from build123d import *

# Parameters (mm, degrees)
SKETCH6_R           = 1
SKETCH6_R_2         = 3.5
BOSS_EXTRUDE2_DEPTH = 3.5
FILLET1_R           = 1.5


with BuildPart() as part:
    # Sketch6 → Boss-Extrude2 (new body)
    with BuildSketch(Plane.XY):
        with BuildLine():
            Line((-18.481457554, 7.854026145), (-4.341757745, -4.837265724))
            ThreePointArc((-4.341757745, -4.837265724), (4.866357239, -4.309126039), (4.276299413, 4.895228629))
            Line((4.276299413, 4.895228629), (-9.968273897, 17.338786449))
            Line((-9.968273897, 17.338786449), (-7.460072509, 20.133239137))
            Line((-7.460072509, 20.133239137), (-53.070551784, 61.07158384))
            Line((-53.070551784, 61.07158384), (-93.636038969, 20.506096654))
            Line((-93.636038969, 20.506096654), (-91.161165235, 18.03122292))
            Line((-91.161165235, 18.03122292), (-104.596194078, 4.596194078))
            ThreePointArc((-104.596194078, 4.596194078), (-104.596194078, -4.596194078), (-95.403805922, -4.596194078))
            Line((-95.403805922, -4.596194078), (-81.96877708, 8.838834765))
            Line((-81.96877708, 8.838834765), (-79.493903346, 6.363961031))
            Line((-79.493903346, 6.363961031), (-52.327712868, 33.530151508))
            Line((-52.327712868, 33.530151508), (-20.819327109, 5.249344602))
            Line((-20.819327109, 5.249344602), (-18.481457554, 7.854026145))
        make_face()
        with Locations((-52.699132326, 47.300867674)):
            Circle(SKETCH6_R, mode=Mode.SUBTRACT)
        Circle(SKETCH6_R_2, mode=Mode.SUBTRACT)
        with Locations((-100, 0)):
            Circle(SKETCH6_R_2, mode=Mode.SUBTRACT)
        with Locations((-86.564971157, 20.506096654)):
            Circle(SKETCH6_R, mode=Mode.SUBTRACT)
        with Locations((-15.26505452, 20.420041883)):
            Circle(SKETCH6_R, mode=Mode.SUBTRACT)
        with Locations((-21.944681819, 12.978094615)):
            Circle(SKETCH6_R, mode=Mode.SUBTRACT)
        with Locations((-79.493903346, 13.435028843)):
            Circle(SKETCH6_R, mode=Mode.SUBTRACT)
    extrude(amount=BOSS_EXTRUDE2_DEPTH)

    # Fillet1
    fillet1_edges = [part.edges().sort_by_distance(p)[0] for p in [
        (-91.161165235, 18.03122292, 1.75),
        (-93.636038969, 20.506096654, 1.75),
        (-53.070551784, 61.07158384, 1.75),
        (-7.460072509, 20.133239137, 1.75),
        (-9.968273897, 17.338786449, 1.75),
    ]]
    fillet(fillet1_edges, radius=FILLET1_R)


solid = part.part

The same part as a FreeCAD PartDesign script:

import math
import FreeCAD as App
import Part
import Sketcher
Q = App.Units.Quantity


def edges_at(feature, points):
    """Names of the edges that pass closest to the given points."""
    edges = feature.Shape.Edges
    near = lambda p: min(range(len(edges)), key=lambda i: edges[i].distToShape(Part.Vertex(*p))[0])
    return sorted({f"Edge{near(p) + 1}" for p in points})

doc = App.newDocument("Part")
body = doc.addObject("PartDesign::Body", "Body")

sketch1 = body.newObject("Sketcher::SketchObject", "Sketch")
sketch1.AttachmentSupport = (doc.getObject("XY_Plane"), [""])
sketch1.MapMode = "FlatFace"
sketch1.addGeometry([
    Part.LineSegment(App.Vector(-18.5, 7.9, 0), App.Vector(-4.3, -4.8, 0)),
    Part.ArcOfCircle(Part.Circle(App.Vector(0, 0, 0), App.Vector(0, 0, 1), 6.5), math.radians(-132), math.radians(49)),
    Part.LineSegment(App.Vector(4.3, 4.9, 0), App.Vector(-10, 17.3, 0)),
    Part.LineSegment(App.Vector(-10, 17.3, 0), App.Vector(-7.5, 20.1, 0)),
    Part.LineSegment(App.Vector(-7.5, 20.1, 0), App.Vector(-53.1, 61.1, 0)),
    Part.LineSegment(App.Vector(-53.1, 61.1, 0), App.Vector(-93.6, 20.5, 0)),
    Part.LineSegment(App.Vector(-93.6, 20.5, 0), App.Vector(-91.2, 18, 0)),
    Part.LineSegment(App.Vector(-91.2, 18, 0), App.Vector(-104.6, 4.6, 0)),
    Part.ArcOfCircle(Part.Circle(App.Vector(-100, 0, 0), App.Vector(0, 0, 1), 6.5), math.radians(135), math.radians(315)),
    Part.LineSegment(App.Vector(-95.4, -4.6, 0), App.Vector(-82, 8.8, 0)),
    Part.LineSegment(App.Vector(-82, 8.8, 0), App.Vector(-79.5, 6.4, 0)),
    Part.LineSegment(App.Vector(-79.5, 6.4, 0), App.Vector(-52.3, 33.5, 0)),
    Part.LineSegment(App.Vector(-52.3, 33.5, 0), App.Vector(-20.8, 5.2, 0)),
    Part.LineSegment(App.Vector(-20.8, 5.2, 0), App.Vector(-18.5, 7.9, 0)),
    Part.Circle(App.Vector(-100, 0, 0), App.Vector(0, 0, 1), 3.5),
    Part.Circle(App.Vector(-79.5, 13.4, 0), App.Vector(0, 0, 1), 1),
    Part.Circle(App.Vector(-86.6, 20.5, 0), App.Vector(0, 0, 1), 1),
    Part.Circle(App.Vector(0, 0, 0), App.Vector(0, 0, 1), 3.5),
    Part.Circle(App.Vector(-21.9, 13, 0), App.Vector(0, 0, 1), 1),
    Part.Circle(App.Vector(-15.3, 20.4, 0), App.Vector(0, 0, 1), 1),
    Part.Circle(App.Vector(-52.7, 47.3, 0), App.Vector(0, 0, 1), 1),
], False)
sketch1.addConstraint([
    Sketcher.Constraint("Tangent", 0, 2, 1, 1),
    Sketcher.Constraint("Tangent", 1, 2, 2, 1),
    Sketcher.Constraint("Coincident", 2, 2, 3, 1),
    Sketcher.Constraint("Coincident", 3, 2, 4, 1),
    Sketcher.Constraint("Coincident", 4, 2, 5, 1),
    Sketcher.Constraint("Coincident", 5, 2, 6, 1),
    Sketcher.Constraint("Coincident", 6, 2, 7, 1),
    Sketcher.Constraint("Tangent", 7, 2, 8, 1),
    Sketcher.Constraint("Tangent", 8, 2, 9, 1),
    Sketcher.Constraint("Coincident", 9, 2, 10, 1),
    Sketcher.Constraint("Coincident", 10, 2, 11, 1),
    Sketcher.Constraint("Coincident", 11, 2, 12, 1),
    Sketcher.Constraint("Coincident", 12, 2, 13, 1),
    Sketcher.Constraint("Coincident", 13, 2, 0, 1),
    Sketcher.Constraint("Coincident", 1, 3, -1, 1),
    Sketcher.Constraint("Coincident", 17, 3, -1, 1),
    Sketcher.Constraint("Coincident", 14, 3, 8, 3),
    Sketcher.Constraint("Equal", 1, 8),
    Sketcher.Constraint("Equal", 15, 16),
    Sketcher.Constraint("Equal", 14, 17),
    Sketcher.Constraint("Equal", 16, 18),
    Sketcher.Constraint("Equal", 18, 19),
    Sketcher.Constraint("Equal", 19, 20),
    Sketcher.Constraint("PointOnObject", 8, 3, -1),
    Sketcher.Constraint("Perpendicular", 0, 3),
    Sketcher.Constraint("Perpendicular", 3, 4),
    Sketcher.Constraint("Perpendicular", 5, 6),
    Sketcher.Constraint("Perpendicular", 6, 7),
    Sketcher.Constraint("Parallel", 7, 9),
    Sketcher.Constraint("Perpendicular", 9, 10),
    Sketcher.Constraint("Perpendicular", 10, 11),
    Sketcher.Constraint("Parallel", 4, 12),
    Sketcher.Constraint("Perpendicular", 12, 13),
    Sketcher.Constraint("Horizontal", 16, 3, 5, 2),
    Sketcher.Constraint("Vertical", 15, 3, 10, 2),
    Sketcher.Constraint("Equal", 0, 7),
    Sketcher.Constraint("Equal", 7, 9),
    Sketcher.Constraint("Equal", 6, 10),
    Sketcher.Constraint("Equal", 10, 13),
    Sketcher.Constraint("Diameter", 14, 7.0),
    Sketcher.Constraint("Diameter", 15, 2.0),
    Sketcher.Constraint("Radius", 1, 6.5),
    Sketcher.Constraint("Angle", 5, Q("-135 deg")),
    Sketcher.Constraint("Distance", 0, 19.0),
    Sketcher.Constraint("DistanceX", 8, 3, -1, 1, 100.0),
    Sketcher.Constraint("Distance", 6, 3.5),
    Sketcher.Constraint("Distance", 12, 42.3389),
    Sketcher.Constraint("DistanceX", -1, 1, 1, 2, 4.276299),
    Sketcher.Constraint("DistanceX", 2, 2, 3, 2, 2.508201),
    Sketcher.Constraint("Distance", 2, 18.91428),
    Sketcher.Constraint("DistanceY", -1, 1, 15, 3, 13.435029),
    Sketcher.Constraint("DistanceX", 16, 3, -1, 1, 86.564971),
    Sketcher.Constraint("DistanceX", 18, 3, -1, 1, 21.944682),
    Sketcher.Constraint("DistanceY", -1, 1, 19, 3, 20.420042),
    Sketcher.Constraint("DistanceX", 15, 3, 19, 3, 64.228849),
    Sketcher.Constraint("DistanceX", 15, 3, 20, 3, 26.794771),
    Sketcher.Constraint("DistanceY", 15, 3, 20, 3, 33.865839),
    Sketcher.Constraint("DistanceY", 0, 2, 18, 3, 17.81536),
])
pad1 = body.newObject("PartDesign::Pad", "Pad")
pad1.Profile = sketch1
pad1.Length = 3.5
doc.recompute()

fillet = body.newObject("PartDesign::Fillet", "Fillet")
fillet.Base = (pad1, edges_at(pad1, [
    (-91.161, 18.031, 1.75),
    (-93.636, 20.506, 1.75),
    (-53.071, 61.072, 1.75),
    (-7.46, 20.133, 1.75),
    (-9.968, 17.339, 1.75),
]))
fillet.Radius = 1.5

doc.recompute()
